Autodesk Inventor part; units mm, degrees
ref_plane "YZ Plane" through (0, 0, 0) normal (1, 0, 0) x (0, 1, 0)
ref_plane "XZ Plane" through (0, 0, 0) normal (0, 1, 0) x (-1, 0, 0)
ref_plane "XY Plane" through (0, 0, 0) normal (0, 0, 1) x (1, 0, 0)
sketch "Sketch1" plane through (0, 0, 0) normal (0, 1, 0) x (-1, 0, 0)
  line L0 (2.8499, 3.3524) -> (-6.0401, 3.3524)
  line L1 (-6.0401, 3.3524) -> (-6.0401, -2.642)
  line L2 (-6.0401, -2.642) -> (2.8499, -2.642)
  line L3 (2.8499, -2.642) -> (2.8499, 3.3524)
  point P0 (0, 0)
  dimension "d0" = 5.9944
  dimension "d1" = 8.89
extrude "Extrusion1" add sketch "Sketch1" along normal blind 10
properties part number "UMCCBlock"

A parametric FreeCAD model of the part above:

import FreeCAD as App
import Part
import Sketcher
Q = App.Units.Quantity

doc = App.newDocument("Part")
body = doc.addObject("PartDesign::Body", "Body")

sketch1 = body.newObject("Sketcher::SketchObject", "Sketch")
sketch1.AttachmentSupport = (doc.getObject("XZ_Plane"), [""])
sketch1.MapMode = "FlatFace"
sketch1.addGeometry([
    Part.LineSegment(App.Vector(-3, -3, 0), App.Vector(-3, 3, 0)),
    Part.LineSegment(App.Vector(-3, 3, 0), App.Vector(6, 3, 0)),
    Part.LineSegment(App.Vector(6, 3, 0), App.Vector(6, -3, 0)),
    Part.LineSegment(App.Vector(6, -3, 0), App.Vector(-3, -3, 0)),
], False)
sketch1.addConstraint([
    Sketcher.Constraint("Coincident", 0, 2, 1, 1),
    Sketcher.Constraint("Coincident", 1, 2, 2, 1),
    Sketcher.Constraint("Coincident", 2, 2, 3, 1),
    Sketcher.Constraint("Coincident", 3, 2, 0, 1),
    Sketcher.Constraint("Vertical", 0),
    Sketcher.Constraint("Horizontal", 1),
    Sketcher.Constraint("Vertical", 2),
    Sketcher.Constraint("Horizontal", 3),
    Sketcher.Constraint("DistanceX", 1, 1, 1, 2, Q("0.35 in")),
    Sketcher.Constraint("DistanceY", 0, 1, 0, 2, Q("0.236 in")),
    Sketcher.Constraint("DistanceX", 0, 2, -1, 1, Q("0.1122 in")),
    Sketcher.Constraint("DistanceY", -1, 1, 0, 2, 3.3524),
])
pad1 = body.newObject("PartDesign::Pad", "Pad")
pad1.Profile = sketch1
pad1.Length = Q("0.3937008 in")
pad1.Reversed = True

doc.recompute()
